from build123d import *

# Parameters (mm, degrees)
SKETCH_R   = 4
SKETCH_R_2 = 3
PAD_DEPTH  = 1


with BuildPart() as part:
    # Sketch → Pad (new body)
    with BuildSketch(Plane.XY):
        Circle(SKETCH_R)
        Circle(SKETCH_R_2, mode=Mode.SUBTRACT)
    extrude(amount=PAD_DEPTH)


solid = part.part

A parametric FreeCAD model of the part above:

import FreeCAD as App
import Part
import Sketcher

doc = App.newDocument("Part")
body = doc.addObject("PartDesign::Body", "Body")

# Sketch on XY plane
sketch1 = body.newObject("Sketcher::SketchObject", "Sketch")
sketch1.AttachmentSupport = (doc.getObject("XY_Plane"), [""])
sketch1.MapMode = "FlatFace"
sketch1.addGeometry(Part.Circle(App.Vector(0, 0, 0), App.Vector(0, 0, 1), 4), False)
sketch1.addGeometry(Part.Circle(App.Vector(0, 0, 0), App.Vector(0, 0, 1), 3), False)
sketch1.addConstraint(Sketcher.Constraint("Coincident", 0, 3, -1, 1))
sketch1.addConstraint(Sketcher.Constraint("Coincident", 1, 3, -1, 1))
sketch1.addConstraint(Sketcher.Constraint("Diameter", 0, 8.0))
sketch1.addConstraint(Sketcher.Constraint("Diameter", 1, 6.0))
pad1 = body.newObject("PartDesign::Pad", "Pad")
pad1.Profile = sketch1
pad1.Length = 1

doc.recompute()
